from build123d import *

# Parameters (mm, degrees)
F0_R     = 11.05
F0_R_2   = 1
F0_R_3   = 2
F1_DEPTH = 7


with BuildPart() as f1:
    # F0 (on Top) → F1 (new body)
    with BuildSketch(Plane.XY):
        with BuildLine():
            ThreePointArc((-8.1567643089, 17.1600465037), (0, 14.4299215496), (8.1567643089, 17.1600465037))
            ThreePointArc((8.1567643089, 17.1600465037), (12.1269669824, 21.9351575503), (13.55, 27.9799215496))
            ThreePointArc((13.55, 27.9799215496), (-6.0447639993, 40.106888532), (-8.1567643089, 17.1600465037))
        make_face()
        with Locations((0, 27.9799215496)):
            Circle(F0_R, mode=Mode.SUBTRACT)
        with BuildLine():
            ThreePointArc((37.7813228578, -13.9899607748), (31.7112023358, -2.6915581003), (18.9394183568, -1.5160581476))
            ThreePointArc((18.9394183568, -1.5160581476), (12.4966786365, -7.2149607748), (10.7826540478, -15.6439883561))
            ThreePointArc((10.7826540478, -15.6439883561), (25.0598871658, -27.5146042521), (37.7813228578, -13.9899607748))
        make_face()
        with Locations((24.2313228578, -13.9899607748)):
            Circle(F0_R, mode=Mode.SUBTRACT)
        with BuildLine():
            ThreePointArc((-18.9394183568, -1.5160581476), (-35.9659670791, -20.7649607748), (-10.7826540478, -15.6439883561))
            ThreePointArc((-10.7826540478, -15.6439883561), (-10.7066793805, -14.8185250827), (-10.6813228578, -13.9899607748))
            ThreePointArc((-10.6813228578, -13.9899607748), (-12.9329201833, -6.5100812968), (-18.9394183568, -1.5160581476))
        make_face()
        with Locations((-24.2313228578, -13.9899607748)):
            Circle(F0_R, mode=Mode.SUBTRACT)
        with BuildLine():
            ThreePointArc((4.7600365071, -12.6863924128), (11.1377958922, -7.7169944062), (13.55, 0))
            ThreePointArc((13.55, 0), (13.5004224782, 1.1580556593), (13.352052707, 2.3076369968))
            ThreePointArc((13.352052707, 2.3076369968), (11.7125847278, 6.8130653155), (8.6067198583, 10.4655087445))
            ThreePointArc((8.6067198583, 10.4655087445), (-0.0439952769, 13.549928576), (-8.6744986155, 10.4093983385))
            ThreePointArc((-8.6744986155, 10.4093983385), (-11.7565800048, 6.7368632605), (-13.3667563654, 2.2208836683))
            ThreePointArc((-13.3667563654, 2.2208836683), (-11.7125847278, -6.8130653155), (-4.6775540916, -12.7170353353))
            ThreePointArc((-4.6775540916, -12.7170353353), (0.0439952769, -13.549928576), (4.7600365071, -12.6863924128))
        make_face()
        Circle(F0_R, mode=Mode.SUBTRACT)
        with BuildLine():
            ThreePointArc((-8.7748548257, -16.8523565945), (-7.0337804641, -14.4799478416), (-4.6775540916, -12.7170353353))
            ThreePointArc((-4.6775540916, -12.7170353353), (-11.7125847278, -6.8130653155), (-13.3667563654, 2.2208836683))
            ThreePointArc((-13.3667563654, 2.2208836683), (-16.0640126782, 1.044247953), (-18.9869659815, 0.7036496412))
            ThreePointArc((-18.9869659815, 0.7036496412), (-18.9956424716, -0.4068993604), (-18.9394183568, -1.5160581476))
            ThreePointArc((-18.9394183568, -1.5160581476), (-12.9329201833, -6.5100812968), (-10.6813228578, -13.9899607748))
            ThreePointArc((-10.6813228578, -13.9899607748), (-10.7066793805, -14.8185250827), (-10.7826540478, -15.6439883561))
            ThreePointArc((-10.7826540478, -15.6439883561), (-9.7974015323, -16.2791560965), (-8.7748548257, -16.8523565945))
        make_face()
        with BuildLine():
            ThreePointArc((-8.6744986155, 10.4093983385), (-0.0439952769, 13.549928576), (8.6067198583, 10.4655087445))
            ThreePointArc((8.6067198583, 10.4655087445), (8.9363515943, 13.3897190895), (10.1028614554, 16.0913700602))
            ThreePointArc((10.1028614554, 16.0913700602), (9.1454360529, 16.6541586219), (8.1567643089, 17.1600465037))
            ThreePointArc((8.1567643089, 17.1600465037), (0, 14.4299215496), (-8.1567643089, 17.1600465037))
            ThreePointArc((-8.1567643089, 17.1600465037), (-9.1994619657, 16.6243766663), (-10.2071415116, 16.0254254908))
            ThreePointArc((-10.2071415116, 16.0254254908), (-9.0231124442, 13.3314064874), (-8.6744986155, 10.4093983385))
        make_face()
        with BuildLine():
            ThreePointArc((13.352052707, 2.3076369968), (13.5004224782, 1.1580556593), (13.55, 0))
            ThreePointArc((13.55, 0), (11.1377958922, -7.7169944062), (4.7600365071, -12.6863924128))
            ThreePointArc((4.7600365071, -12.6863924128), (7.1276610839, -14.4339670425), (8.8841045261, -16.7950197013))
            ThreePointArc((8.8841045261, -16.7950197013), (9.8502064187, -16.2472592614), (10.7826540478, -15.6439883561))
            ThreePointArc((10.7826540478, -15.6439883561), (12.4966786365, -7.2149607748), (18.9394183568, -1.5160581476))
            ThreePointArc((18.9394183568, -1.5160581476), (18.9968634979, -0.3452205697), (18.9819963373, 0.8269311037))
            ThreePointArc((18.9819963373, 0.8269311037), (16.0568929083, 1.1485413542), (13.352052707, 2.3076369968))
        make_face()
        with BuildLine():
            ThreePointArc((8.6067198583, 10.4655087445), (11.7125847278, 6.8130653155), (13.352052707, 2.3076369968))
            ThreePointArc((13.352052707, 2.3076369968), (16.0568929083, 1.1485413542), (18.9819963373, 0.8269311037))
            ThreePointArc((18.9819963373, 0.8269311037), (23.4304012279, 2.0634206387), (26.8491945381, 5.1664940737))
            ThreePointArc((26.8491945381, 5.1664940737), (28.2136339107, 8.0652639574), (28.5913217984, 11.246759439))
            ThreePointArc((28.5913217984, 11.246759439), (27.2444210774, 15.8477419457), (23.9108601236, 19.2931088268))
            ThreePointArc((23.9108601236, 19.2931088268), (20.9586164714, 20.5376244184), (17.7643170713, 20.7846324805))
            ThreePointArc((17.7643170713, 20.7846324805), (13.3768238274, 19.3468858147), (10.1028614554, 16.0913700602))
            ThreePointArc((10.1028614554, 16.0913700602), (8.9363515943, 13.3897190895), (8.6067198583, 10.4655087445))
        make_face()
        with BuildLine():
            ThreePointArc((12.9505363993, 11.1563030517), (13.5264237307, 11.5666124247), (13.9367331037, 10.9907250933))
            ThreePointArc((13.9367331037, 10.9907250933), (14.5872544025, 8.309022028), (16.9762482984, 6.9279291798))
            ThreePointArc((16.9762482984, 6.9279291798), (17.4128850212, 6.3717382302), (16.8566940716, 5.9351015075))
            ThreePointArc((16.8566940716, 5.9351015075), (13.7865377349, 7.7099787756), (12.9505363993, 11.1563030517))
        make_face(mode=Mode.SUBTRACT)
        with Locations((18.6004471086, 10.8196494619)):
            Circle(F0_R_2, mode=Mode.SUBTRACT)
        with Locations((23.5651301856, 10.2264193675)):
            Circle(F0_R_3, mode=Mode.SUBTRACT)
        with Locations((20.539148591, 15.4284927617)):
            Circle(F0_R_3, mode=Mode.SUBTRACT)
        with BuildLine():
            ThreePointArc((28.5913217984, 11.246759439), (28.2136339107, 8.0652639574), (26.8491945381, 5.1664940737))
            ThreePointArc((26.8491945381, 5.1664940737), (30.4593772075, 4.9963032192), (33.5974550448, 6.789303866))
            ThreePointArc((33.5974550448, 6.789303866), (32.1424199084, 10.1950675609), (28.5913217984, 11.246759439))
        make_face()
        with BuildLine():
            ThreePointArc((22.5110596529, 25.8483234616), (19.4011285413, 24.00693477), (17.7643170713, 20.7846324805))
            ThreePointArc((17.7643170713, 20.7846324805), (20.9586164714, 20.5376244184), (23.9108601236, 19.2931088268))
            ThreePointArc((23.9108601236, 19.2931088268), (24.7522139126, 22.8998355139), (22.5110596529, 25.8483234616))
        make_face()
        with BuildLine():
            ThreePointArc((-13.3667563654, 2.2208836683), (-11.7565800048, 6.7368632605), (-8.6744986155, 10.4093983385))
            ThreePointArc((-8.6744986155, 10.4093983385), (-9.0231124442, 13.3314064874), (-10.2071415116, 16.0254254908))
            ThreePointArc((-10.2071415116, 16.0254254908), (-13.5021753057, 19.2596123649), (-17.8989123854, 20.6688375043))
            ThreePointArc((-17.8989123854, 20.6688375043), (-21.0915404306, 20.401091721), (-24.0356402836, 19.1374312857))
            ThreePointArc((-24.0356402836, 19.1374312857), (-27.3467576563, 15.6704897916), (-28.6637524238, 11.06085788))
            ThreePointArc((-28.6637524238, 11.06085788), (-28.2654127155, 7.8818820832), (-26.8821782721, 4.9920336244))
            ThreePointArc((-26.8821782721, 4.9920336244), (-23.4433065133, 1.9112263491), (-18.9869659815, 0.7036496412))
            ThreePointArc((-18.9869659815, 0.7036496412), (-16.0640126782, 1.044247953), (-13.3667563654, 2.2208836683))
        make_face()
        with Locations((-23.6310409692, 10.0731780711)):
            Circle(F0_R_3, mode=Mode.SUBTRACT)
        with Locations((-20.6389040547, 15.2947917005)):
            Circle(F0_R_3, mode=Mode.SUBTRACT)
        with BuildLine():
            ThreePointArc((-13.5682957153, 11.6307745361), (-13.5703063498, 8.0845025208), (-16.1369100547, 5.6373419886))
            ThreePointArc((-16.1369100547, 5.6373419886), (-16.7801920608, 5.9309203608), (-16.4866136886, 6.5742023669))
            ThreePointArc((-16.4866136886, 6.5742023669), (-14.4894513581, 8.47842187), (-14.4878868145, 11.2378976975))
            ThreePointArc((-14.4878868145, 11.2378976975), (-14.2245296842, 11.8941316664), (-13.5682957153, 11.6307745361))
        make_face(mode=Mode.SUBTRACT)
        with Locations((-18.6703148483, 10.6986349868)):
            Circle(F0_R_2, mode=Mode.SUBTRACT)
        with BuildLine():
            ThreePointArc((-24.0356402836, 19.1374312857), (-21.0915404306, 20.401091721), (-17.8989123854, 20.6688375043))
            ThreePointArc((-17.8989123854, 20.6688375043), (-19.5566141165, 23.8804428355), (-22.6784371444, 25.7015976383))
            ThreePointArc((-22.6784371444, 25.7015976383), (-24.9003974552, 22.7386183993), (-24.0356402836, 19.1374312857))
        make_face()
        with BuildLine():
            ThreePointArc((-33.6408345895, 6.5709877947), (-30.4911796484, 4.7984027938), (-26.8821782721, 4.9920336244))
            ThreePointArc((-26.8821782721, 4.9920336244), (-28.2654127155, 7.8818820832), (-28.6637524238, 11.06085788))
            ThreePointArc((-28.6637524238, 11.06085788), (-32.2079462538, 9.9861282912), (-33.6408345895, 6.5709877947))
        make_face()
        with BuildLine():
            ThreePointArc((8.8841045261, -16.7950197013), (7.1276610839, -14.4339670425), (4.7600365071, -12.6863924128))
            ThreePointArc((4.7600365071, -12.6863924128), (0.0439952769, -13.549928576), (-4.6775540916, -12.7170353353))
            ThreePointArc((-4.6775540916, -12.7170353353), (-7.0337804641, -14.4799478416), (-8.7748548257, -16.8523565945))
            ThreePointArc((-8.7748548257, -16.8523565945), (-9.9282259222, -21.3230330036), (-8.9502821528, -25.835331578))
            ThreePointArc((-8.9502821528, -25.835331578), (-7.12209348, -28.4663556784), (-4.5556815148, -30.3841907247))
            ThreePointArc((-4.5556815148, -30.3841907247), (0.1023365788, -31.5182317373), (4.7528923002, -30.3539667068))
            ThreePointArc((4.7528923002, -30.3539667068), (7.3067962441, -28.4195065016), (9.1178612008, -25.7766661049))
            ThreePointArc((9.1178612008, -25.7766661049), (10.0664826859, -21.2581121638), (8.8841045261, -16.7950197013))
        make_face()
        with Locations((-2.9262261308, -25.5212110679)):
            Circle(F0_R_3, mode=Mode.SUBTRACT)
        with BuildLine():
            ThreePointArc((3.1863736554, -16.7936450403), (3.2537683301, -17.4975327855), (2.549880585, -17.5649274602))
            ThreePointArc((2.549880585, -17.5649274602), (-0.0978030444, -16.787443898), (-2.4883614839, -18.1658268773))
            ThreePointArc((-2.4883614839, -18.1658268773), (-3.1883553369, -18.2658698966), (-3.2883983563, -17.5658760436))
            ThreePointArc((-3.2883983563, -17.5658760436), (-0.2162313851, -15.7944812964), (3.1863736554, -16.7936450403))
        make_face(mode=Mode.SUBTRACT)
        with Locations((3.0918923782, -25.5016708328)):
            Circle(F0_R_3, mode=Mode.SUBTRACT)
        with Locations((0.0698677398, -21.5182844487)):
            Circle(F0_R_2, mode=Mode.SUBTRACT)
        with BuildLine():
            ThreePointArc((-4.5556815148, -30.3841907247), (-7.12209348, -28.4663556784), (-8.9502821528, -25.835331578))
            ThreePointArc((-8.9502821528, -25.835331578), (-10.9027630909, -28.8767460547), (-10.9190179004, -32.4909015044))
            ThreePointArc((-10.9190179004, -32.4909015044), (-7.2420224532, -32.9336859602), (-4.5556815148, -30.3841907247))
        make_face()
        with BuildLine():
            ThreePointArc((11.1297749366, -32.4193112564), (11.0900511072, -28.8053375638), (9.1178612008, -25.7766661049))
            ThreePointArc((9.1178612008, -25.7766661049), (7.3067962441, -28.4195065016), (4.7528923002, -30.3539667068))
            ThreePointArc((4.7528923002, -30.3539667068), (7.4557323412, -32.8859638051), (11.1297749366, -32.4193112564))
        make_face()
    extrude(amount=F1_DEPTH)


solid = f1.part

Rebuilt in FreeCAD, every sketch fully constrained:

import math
import FreeCAD as App
import Part
import Sketcher
Q = App.Units.Quantity

doc = App.newDocument("Part")
body = doc.addObject("PartDesign::Body", "Body")

# Sketch on XY plane
sketch1 = body.newObject("Sketcher::SketchObject", "Sketch")
sketch1.AttachmentSupport = (doc.getObject("XY_Plane"), [""])
sketch1.MapMode = "FlatFace"
sketch1.addGeometry(Part.ArcOfCircle(Part.Circle(App.Vector(0, 27.979922, 0), App.Vector(0, 0, 1), 13.55), math.radians(-52.988506), math.radians(0)), False)
sketch1.addGeometry(Part.ArcOfCircle(Part.Circle(App.Vector(0, 27.979922, 0), App.Vector(0, 0, 1), 13.55), math.radians(0), math.radians(232.988506)), False)
sketch1.addGeometry(Part.ArcOfCircle(Part.Circle(App.Vector(0, 0, 0), App.Vector(0, 0, 1), 19), math.radians(115.423359), math.radians(122.494454)), False)
sketch1.addGeometry(Part.ArcOfCircle(Part.Circle(App.Vector(-18.670315, 10.698635, 0), App.Vector(0, 0, 1), 10), math.radians(32.186647), math.radians(85.575794)), False)
sketch1.addGeometry(Part.ArcOfCircle(Part.Circle(App.Vector(-24.247538, 19.425554, 0), App.Vector(0, 0, 1), 6.469219), math.radians(11.080294), math.radians(75.962984)), False)
sketch1.addGeometry(Part.ArcOfCircle(Part.Circle(App.Vector(-20.638904, 21.857515, 0), App.Vector(0, 0, 1), 4.351628), math.radians(117.948824), math.radians(218.687509)), False)
sketch1.addGeometry(Part.ArcOfCircle(Part.Circle(App.Vector(-18.670315, 10.698635, 0), App.Vector(0, 0, 1), 10), math.radians(122.447905), math.radians(177.924162)), False)
sketch1.addGeometry(Part.ArcOfCircle(Part.Circle(App.Vector(-29.293098, 6.754979, 0), App.Vector(0, 0, 1), 4.351628), math.radians(81.684557), math.radians(182.423243)), False)
sketch1.addGeometry(Part.ArcOfCircle(Part.Circle(App.Vector(-29.019472, 11.097996, 0), App.Vector(0, 0, 1), 6.469219), math.radians(-135.590918), math.radians(-70.708228)), False)
sketch1.addGeometry(Part.ArcOfCircle(Part.Circle(App.Vector(-18.670315, 10.698635, 0), App.Vector(0, 0, 1), 10), math.radians(-145.203728), math.radians(-91.814581)), False)
sketch1.addGeometry(Part.ArcOfCircle(Part.Circle(App.Vector(0, 0, 0), App.Vector(0, 0, 1), 19), math.radians(177.877612), math.radians(184.576641)), False)
sketch1.addGeometry(Part.ArcOfCircle(Part.Circle(App.Vector(-24.231323, -13.989961, 0), App.Vector(0, 0, 1), 13.55), math.radians(67.011494), math.radians(352.988506)), False)
sketch1.addGeometry(Part.ArcOfCircle(Part.Circle(App.Vector(0, 0, 0), App.Vector(0, 0, 1), 19), math.radians(-124.576641), math.radians(-117.505546)), False)
sketch1.addGeometry(Part.ArcOfCircle(Part.Circle(App.Vector(0.069868, -21.518284, 0), App.Vector(0, 0, 1), 10), math.radians(152.186647), math.radians(205.575794)), False)
sketch1.addGeometry(Part.ArcOfCircle(Part.Circle(App.Vector(-4.699254, -30.711761, 0), App.Vector(0, 0, 1), 6.469219), math.radians(131.080294), math.radians(195.962984)), False)
sketch1.addGeometry(Part.ArcOfCircle(Part.Circle(App.Vector(-8.609711, -28.802572, 0), App.Vector(0, 0, 1), 4.351628), math.radians(-122.051176), math.radians(-21.312491)), False)
sketch1.addGeometry(Part.ArcOfCircle(Part.Circle(App.Vector(0.069868, -21.518284, 0), App.Vector(0, 0, 1), 10), math.radians(-117.552095), math.radians(-62.075838)), False)
sketch1.addGeometry(Part.ArcOfCircle(Part.Circle(App.Vector(8.796566, -28.746056, 0), App.Vector(0, 0, 1), 4.351628), math.radians(-158.315443), math.radians(-57.576757)), False)
sketch1.addGeometry(Part.ArcOfCircle(Part.Circle(App.Vector(4.898589, -30.680598, 0), App.Vector(0, 0, 1), 6.469219), math.radians(-15.590918), math.radians(49.291772)), False)
sketch1.addGeometry(Part.ArcOfCircle(Part.Circle(App.Vector(0.069868, -21.518284, 0), App.Vector(0, 0, 1), 10), math.radians(-25.203728), math.radians(28.185419)), False)
sketch1.addGeometry(Part.ArcOfCircle(Part.Circle(App.Vector(0, 0, 0), App.Vector(0, 0, 1), 19), math.radians(-62.122388), math.radians(-55.423359)), False)
sketch1.addGeometry(Part.ArcOfCircle(Part.Circle(App.Vector(24.231323, -13.989961, 0), App.Vector(0, 0, 1), 13.55), math.radians(-172.988506), math.radians(0)), False)
sketch1.addGeometry(Part.ArcOfCircle(Part.Circle(App.Vector(24.231323, -13.989961, 0), App.Vector(0, 0, 1), 13.55), math.radians(0), math.radians(112.988506)), False)
sketch1.addGeometry(Part.ArcOfCircle(Part.Circle(App.Vector(0, 0, 0), App.Vector(0, 0, 1), 19), math.radians(-4.576641), math.radians(2.494454)), False)
sketch1.addGeometry(Part.ArcOfCircle(Part.Circle(App.Vector(18.600447, 10.819649, 0), App.Vector(0, 0, 1), 10), math.radians(-87.813353), math.radians(-34.424206)), False)
sketch1.addGeometry(Part.ArcOfCircle(Part.Circle(App.Vector(28.946792, 11.286207, 0), App.Vector(0, 0, 1), 6.469219), math.radians(-108.919706), math.radians(-44.037016)), False)
sketch1.addGeometry(Part.ArcOfCircle(Part.Circle(App.Vector(29.248615, 6.945058, 0), App.Vector(0, 0, 1), 4.351628), math.radians(-2.051176), math.radians(98.687509)), False)
sketch1.addGeometry(Part.ArcOfCircle(Part.Circle(App.Vector(18.600447, 10.819649, 0), App.Vector(0, 0, 1), 10), math.radians(2.447905), math.radians(57.924162)), False)
sketch1.addGeometry(Part.ArcOfCircle(Part.Circle(App.Vector(20.496532, 21.991077, 0), App.Vector(0, 0, 1), 4.351628), math.radians(-38.315443), math.radians(62.423243)), False)
sketch1.addGeometry(Part.ArcOfCircle(Part.Circle(App.Vector(24.120882, 19.582602, 0), App.Vector(0, 0, 1), 6.469219), math.radians(104.409082), math.radians(169.291772)), False)
sketch1.addGeometry(Part.ArcOfCircle(Part.Circle(App.Vector(18.600447, 10.819649, 0), App.Vector(0, 0, 1), 10), math.radians(94.796272), math.radians(148.185419)), False)
sketch1.addGeometry(Part.ArcOfCircle(Part.Circle(App.Vector(0, 0, 0), App.Vector(0, 0, 1), 19), math.radians(57.877612), math.radians(64.576641)), False)
sketch1.addGeometry(Part.Circle(App.Vector(-24.231323, -13.989961, 0), App.Vector(0, 0, 1), 11.05), False)
sketch1.addGeometry(Part.Circle(App.Vector(-2.926226, -25.521211, 0), App.Vector(0, 0, 1), 2), False)
sketch1.addGeometry(Part.ArcOfCircle(Part.Circle(App.Vector(0.317552, -20.269993, 0), App.Vector(0, 0, 1), 4.507231), math.radians(50.469189), math.radians(143.133624)), False)
sketch1.addGeometry(Part.ArcOfCircle(Part.Circle(App.Vector(2.868127, -17.179286, 0), App.Vector(0, 0, 1), 0.5), math.radians(-129.530811), math.radians(50.469189)), False)
sketch1.addGeometry(Part.ArcOfCircle(Part.Circle(App.Vector(0.317552, -20.269993, 0), App.Vector(0, 0, 1), 3.507231), math.radians(50.469189), math.radians(143.133624)), False)
sketch1.addGeometry(Part.ArcOfCircle(Part.Circle(App.Vector(-2.88838, -17.865851, 0), App.Vector(0, 0, 1), 0.5), math.radians(143.133624), math.radians(323.133624)), False)
sketch1.addGeometry(Part.Circle(App.Vector(3.091892, -25.501671, 0), App.Vector(0, 0, 1), 2), False)
sketch1.addGeometry(Part.Circle(App.Vector(0.069868, -21.518284, 0), App.Vector(0, 0, 1), 1), False)
sketch1.addGeometry(Part.Circle(App.Vector(24.231323, -13.989961, 0), App.Vector(0, 0, 1), 11.05), False)
sketch1.addGeometry(Part.Circle(App.Vector(0, 0, 0), App.Vector(0, 0, 1), 11.05), False)
sketch1.addGeometry(Part.Circle(App.Vector(-23.631041, 10.073178, 0), App.Vector(0, 0, 1), 2), False)
sketch1.addGeometry(Part.Circle(App.Vector(-18.670315, 10.698635, 0), App.Vector(0, 0, 1), 1), False)
sketch1.addGeometry(Part.Circle(App.Vector(-20.638904, 15.294792, 0), App.Vector(0, 0, 1), 2), False)
sketch1.addGeometry(Part.ArcOfCircle(Part.Circle(App.Vector(-14.028091, 11.434336, 0), App.Vector(0, 0, 1), 0.5), math.radians(23.133624), math.radians(203.133624)), False)
sketch1.addGeometry(Part.ArcOfCircle(Part.Circle(App.Vector(-17.713105, 9.859988, 0), App.Vector(0, 0, 1), 4.507231), math.radians(-69.530811), math.radians(23.133624)), False)
sketch1.addGeometry(Part.ArcOfCircle(Part.Circle(App.Vector(-16.311762, 6.105772, 0), App.Vector(0, 0, 1), 0.5), math.radians(110.469189), math.radians(290.469189)), False)
sketch1.addGeometry(Part.ArcOfCircle(Part.Circle(App.Vector(-17.713105, 9.859988, 0), App.Vector(0, 0, 1), 3.507231), math.radians(-69.530811), math.radians(23.133624)), False)
sketch1.addGeometry(Part.ArcOfCircle(Part.Circle(App.Vector(17.395553, 10.410005, 0), App.Vector(0, 0, 1), 4.507231), math.radians(170.469189), math.radians(263.133624)), False)
sketch1.addGeometry(Part.ArcOfCircle(Part.Circle(App.Vector(13.443635, 11.073514, 0), App.Vector(0, 0, 1), 0.5), math.radians(-9.530811), math.radians(170.469189)), False)
sketch1.addGeometry(Part.ArcOfCircle(Part.Circle(App.Vector(17.395553, 10.410005, 0), App.Vector(0, 0, 1), 3.507231), math.radians(170.469189), math.radians(263.133624)), False)
sketch1.addGeometry(Part.ArcOfCircle(Part.Circle(App.Vector(16.916471, 6.431515, 0), App.Vector(0, 0, 1), 0.5), math.radians(-96.866376), math.radians(83.133624)), False)
sketch1.addGeometry(Part.Circle(App.Vector(18.600447, 10.819649, 0), App.Vector(0, 0, 1), 1), False)
sketch1.addGeometry(Part.Circle(App.Vector(23.56513, 10.226419, 0), App.Vector(0, 0, 1), 2), False)
sketch1.addGeometry(Part.Circle(App.Vector(20.539149, 15.428493, 0), App.Vector(0, 0, 1), 2), False)
sketch1.addGeometry(Part.Circle(App.Vector(0, 27.979922, 0), App.Vector(0, 0, 1), 11.05), False)
sketch1.addConstraint(Sketcher.Constraint("Tangent", 0, 2, 1, 1))
sketch1.addConstraint(Sketcher.Constraint("Coincident", 1, 2, 2, 1))
sketch1.addConstraint(Sketcher.Constraint("Coincident", 2, 2, 3, 1))
sketch1.addConstraint(Sketcher.Constraint("Coincident", 3, 2, 4, 1))
sketch1.addConstraint(Sketcher.Constraint("Coincident", 4, 2, 5, 1))
sketch1.addConstraint(Sketcher.Constraint("Coincident", 5, 2, 6, 1))
sketch1.addConstraint(Sketcher.Constraint("Coincident", 6, 2, 7, 1))
sketch1.addConstraint(Sketcher.Constraint("Coincident", 7, 2, 8, 1))
sketch1.addConstraint(Sketcher.Constraint("Coincident", 8, 2, 9, 1))
sketch1.addConstraint(Sketcher.Constraint("Coincident", 9, 2, 10, 1))
sketch1.addConstraint(Sketcher.Constraint("Coincident", 10, 2, 11, 1))
sketch1.addConstraint(Sketcher.Constraint("Coincident", 11, 2, 12, 1))
sketch1.addConstraint(Sketcher.Constraint("Coincident", 12, 2, 13, 1))
sketch1.addConstraint(Sketcher.Constraint("Coincident", 13, 2, 14, 1))
sketch1.addConstraint(Sketcher.Constraint("Coincident", 14, 2, 15, 1))
sketch1.addConstraint(Sketcher.Constraint("Coincident", 15, 2, 16, 1))
sketch1.addConstraint(Sketcher.Constraint("Coincident", 16, 2, 17, 1))
sketch1.addConstraint(Sketcher.Constraint("Coincident", 17, 2, 18, 1))
sketch1.addConstraint(Sketcher.Constraint("Coincident", 18, 2, 19, 1))
sketch1.addConstraint(Sketcher.Constraint("Coincident", 19, 2, 20, 1))
sketch1.addConstraint(Sketcher.Constraint("Coincident", 20, 2, 21, 1))
sketch1.addConstraint(Sketcher.Constraint("Tangent", 21, 2, 22, 1))
sketch1.addConstraint(Sketcher.Constraint("Coincident", 22, 2, 23, 1))
sketch1.addConstraint(Sketcher.Constraint("Coincident", 23, 2, 24, 1))
sketch1.addConstraint(Sketcher.Constraint("Coincident", 24, 2, 25, 1))
sketch1.addConstraint(Sketcher.Constraint("Coincident", 25, 2, 26, 1))
sketch1.addConstraint(Sketcher.Constraint("Coincident", 26, 2, 27, 1))
sketch1.addConstraint(Sketcher.Constraint("Coincident", 27, 2, 28, 1))
sketch1.addConstraint(Sketcher.Constraint("Coincident", 28, 2, 29, 1))
sketch1.addConstraint(Sketcher.Constraint("Coincident", 29, 2, 30, 1))
sketch1.addConstraint(Sketcher.Constraint("Coincident", 30, 2, 31, 1))
sketch1.addConstraint(Sketcher.Constraint("Coincident", 31, 2, 0, 1))
sketch1.addConstraint(Sketcher.Constraint("Tangent", 34, 1, 35, 2))
sketch1.addConstraint(Sketcher.Constraint("Tangent", 35, 1, 36, 1))
sketch1.addConstraint(Sketcher.Constraint("Tangent", 36, 2, 37, 2))
sketch1.addConstraint(Sketcher.Constraint("Tangent", 37, 1, 34, 2))
sketch1.addConstraint(Sketcher.Constraint("Tangent", 45, 1, 46, 2))
sketch1.addConstraint(Sketcher.Constraint("Tangent", 46, 1, 47, 2))
sketch1.addConstraint(Sketcher.Constraint("Tangent", 47, 1, 48, 1))
sketch1.addConstraint(Sketcher.Constraint("Tangent", 48, 2, 45, 2))
sketch1.addConstraint(Sketcher.Constraint("Tangent", 49, 1, 50, 2))
sketch1.addConstraint(Sketcher.Constraint("Tangent", 50, 1, 51, 1))
sketch1.addConstraint(Sketcher.Constraint("Tangent", 51, 2, 52, 2))
sketch1.addConstraint(Sketcher.Constraint("Tangent", 52, 1, 49, 2))
sketch1.addConstraint(Sketcher.Constraint("Coincident", 2, 3, -1, 1))
sketch1.addConstraint(Sketcher.Constraint("Coincident", 10, 3, -1, 1))
sketch1.addConstraint(Sketcher.Constraint("Coincident", 12, 3, -1, 1))
sketch1.addConstraint(Sketcher.Constraint("Coincident", 20, 3, -1, 1))
sketch1.addConstraint(Sketcher.Constraint("Coincident", 23, 3, -1, 1))
sketch1.addConstraint(Sketcher.Constraint("Coincident", 31, 3, -1, 1))
sketch1.addConstraint(Sketcher.Constraint("Coincident", 41, 3, -1, 1))
sketch1.addConstraint(Sketcher.Constraint("Coincident", 6, 3, 3, 3))
sketch1.addConstraint(Sketcher.Constraint("Coincident", 9, 3, 3, 3))
sketch1.addConstraint(Sketcher.Constraint("Coincident", 16, 3, 13, 3))
sketch1.addConstraint(Sketcher.Constraint("Coincident", 19, 3, 13, 3))
sketch1.addConstraint(Sketcher.Constraint("Coincident", 27, 3, 24, 3))
sketch1.addConstraint(Sketcher.Constraint("Coincident", 30, 3, 24, 3))
sketch1.addConstraint(Sketcher.Constraint("Coincident", 32, 3, 11, 3))
sketch1.addConstraint(Sketcher.Constraint("Coincident", 36, 3, 34, 3))
sketch1.addConstraint(Sketcher.Constraint("Coincident", 39, 3, 13, 3))
sketch1.addConstraint(Sketcher.Constraint("Coincident", 40, 3, 21, 3))
sketch1.addConstraint(Sketcher.Constraint("Coincident", 43, 3, 3, 3))
sketch1.addConstraint(Sketcher.Constraint("Coincident", 48, 3, 46, 3))
sketch1.addConstraint(Sketcher.Constraint("Coincident", 51, 3, 49, 3))
sketch1.addConstraint(Sketcher.Constraint("Coincident", 53, 3, 24, 3))
sketch1.addConstraint(Sketcher.Constraint("Coincident", 56, 3, 0, 3))
sketch1.addConstraint(Sketcher.Constraint("Equal", 0, 1))
sketch1.addConstraint(Sketcher.Constraint("Equal", 3, 6))
sketch1.addConstraint(Sketcher.Constraint("Equal", 5, 7))
sketch1.addConstraint(Sketcher.Constraint("Equal", 4, 8))
sketch1.addConstraint(Sketcher.Constraint("Equal", 6, 9))
sketch1.addConstraint(Sketcher.Constraint("Equal", 2, 10))
sketch1.addConstraint(Sketcher.Constraint("Equal", 1, 11))
sketch1.addConstraint(Sketcher.Constraint("Equal", 10, 12))
sketch1.addConstraint(Sketcher.Constraint("Equal", 9, 13))
sketch1.addConstraint(Sketcher.Constraint("Equal", 8, 14))
sketch1.addConstraint(Sketcher.Constraint("Equal", 7, 15))
sketch1.addConstraint(Sketcher.Constraint("Equal", 13, 16))
sketch1.addConstraint(Sketcher.Constraint("Equal", 15, 17))
sketch1.addConstraint(Sketcher.Constraint("Equal", 14, 18))
sketch1.addConstraint(Sketcher.Constraint("Equal", 16, 19))
sketch1.addConstraint(Sketcher.Constraint("Equal", 12, 20))
sketch1.addConstraint(Sketcher.Constraint("Equal", 11, 21))
sketch1.addConstraint(Sketcher.Constraint("Equal", 21, 22))
sketch1.addConstraint(Sketcher.Constraint("Equal", 20, 23))
sketch1.addConstraint(Sketcher.Constraint("Equal", 19, 24))
sketch1.addConstraint(Sketcher.Constraint("Equal", 18, 25))
sketch1.addConstraint(Sketcher.Constraint("Equal", 17, 26))
sketch1.addConstraint(Sketcher.Constraint("Equal", 24, 27))
sketch1.addConstraint(Sketcher.Constraint("Equal", 26, 28))
sketch1.addConstraint(Sketcher.Constraint("Equal", 25, 29))
sketch1.addConstraint(Sketcher.Constraint("Equal", 27, 30))
sketch1.addConstraint(Sketcher.Constraint("Equal", 23, 31))
sketch1.addConstraint(Sketcher.Constraint("Equal", 33, 38))
sketch1.addConstraint(Sketcher.Constraint("Equal", 32, 40))
sketch1.addConstraint(Sketcher.Constraint("Equal", 40, 41))
sketch1.addConstraint(Sketcher.Constraint("Equal", 38, 42))
sketch1.addConstraint(Sketcher.Constraint("Equal", 39, 43))
sketch1.addConstraint(Sketcher.Constraint("Equal", 42, 44))
sketch1.addConstraint(Sketcher.Constraint("Equal", 37, 45))
sketch1.addConstraint(Sketcher.Constraint("Equal", 34, 46))
sketch1.addConstraint(Sketcher.Constraint("Equal", 46, 49))
sketch1.addConstraint(Sketcher.Constraint("Equal", 47, 50))
sketch1.addConstraint(Sketcher.Constraint("Equal", 43, 53))
sketch1.addConstraint(Sketcher.Constraint("Equal", 44, 54))
sketch1.addConstraint(Sketcher.Constraint("Equal", 54, 55))
sketch1.addConstraint(Sketcher.Constraint("Equal", 41, 56))
sketch1.addConstraint(Sketcher.Constraint("Symmetric", 11, 3, 21, 3, -2))
sketch1.addConstraint(Sketcher.Constraint("PointOnObject", 0, 3, -2))
sketch1.addConstraint(Sketcher.Constraint("Horizontal", 56, 3, 0, 2))
sketch1.addConstraint(Sketcher.Constraint("Horizontal", 40, 3, 21, 2))
sketch1.addConstraint(Sketcher.Constraint("Vertical", 5, 3, 44, 3))
sketch1.addConstraint(Sketcher.Constraint("Diameter", 33, Q("4 mm")))
sketch1.addConstraint(Sketcher.Constraint("Diameter", 39, Q("2 mm")))
sketch1.addConstraint(Sketcher.Constraint("Radius", 2, Q("19 mm")))
sketch1.addConstraint(Sketcher.Constraint("Radius", 3, Q("10 mm")))
sketch1.addConstraint(Sketcher.Constraint("Diameter", 32, Q("22.1 mm")))
sketch1.addConstraint(Sketcher.Constraint("Radius", 35, Q("0.5 mm")))
sketch1.addConstraint(Sketcher.Constraint("Radius", 0, Q("13.55 mm")))
sketch1.addConstraint(Sketcher.Constraint("Radius", 4, Q("6.469219 mm")))
sketch1.addConstraint(Sketcher.Constraint("Radius", 5, Q("4.351628 mm")))
sketch1.addConstraint(Sketcher.Constraint("Radius", 34, Q("4.507231 mm")))
sketch1.addConstraint(Sketcher.Constraint("DistanceY", -1, 1, 29, 3, Q("19.582602 mm")))
sketch1.addConstraint(Sketcher.Constraint("DistanceY", 14, 2, -1, 1, Q("32.490902 mm")))
sketch1.addConstraint(Sketcher.Constraint("DistanceX", 37, 1, -1, 1, Q("3.288398 mm")))
sketch1.addConstraint(Sketcher.Constraint("DistanceY", -1, 1, 52, 1, Q("5.935102 mm")))
sketch1.addConstraint(Sketcher.Constraint("DistanceY", -1, 1, 0, 3, Q("27.979922 mm")))
sketch1.addConstraint(Sketcher.Constraint("DistanceY", -1, 1, 7, 3, Q("6.754979 mm")))
sketch1.addConstraint(Sketcher.Constraint("DistanceX", 8, 3, -1, 1, Q("29.019472 mm")))
sketch1.addConstraint(Sketcher.Constraint("DistanceY", 11, 3, -1, 1, Q("13.989961 mm")))
sketch1.addConstraint(Sketcher.Constraint("DistanceY", 14, 3, -1, 1, Q("30.711761 mm")))
sketch1.addConstraint(Sketcher.Constraint("DistanceX", 15, 3, -1, 1, Q("8.609711 mm")))
sketch1.addConstraint(Sketcher.Constraint("DistanceX", -1, 1, 18, 3, Q("4.898589 mm")))
sketch1.addConstraint(Sketcher.Constraint("DistanceY", -1, 1, 24, 3, Q("10.819649 mm")))
sketch1.addConstraint(Sketcher.Constraint("DistanceY", 33, 3, -1, 1, Q("25.521211 mm")))
sketch1.addConstraint(Sketcher.Constraint("DistanceX", 37, 3, -1, 1, Q("2.88838 mm")))
sketch1.addConstraint(Sketcher.Constraint("DistanceY", 37, 3, -1, 1, Q("17.865851 mm")))
sketch1.addConstraint(Sketcher.Constraint("DistanceY", 38, 3, -1, 1, Q("25.501671 mm")))
sketch1.addConstraint(Sketcher.Constraint("DistanceX", 42, 3, -1, 1, Q("23.631041 mm")))
sketch1.addConstraint(Sketcher.Constraint("DistanceY", -1, 1, 42, 3, Q("10.073178 mm")))
sketch1.addConstraint(Sketcher.Constraint("DistanceY", -1, 1, 44, 3, Q("15.294792 mm")))
sketch1.addConstraint(Sketcher.Constraint("DistanceX", 45, 3, -1, 1, Q("14.028091 mm")))
sketch1.addConstraint(Sketcher.Constraint("DistanceX", 47, 3, -1, 1, Q("16.311762 mm")))
sketch1.addConstraint(Sketcher.Constraint("DistanceX", -1, 1, 52, 3, Q("16.916471 mm")))
sketch1.addConstraint(Sketcher.Constraint("DistanceX", -1, 1, 54, 3, Q("23.56513 mm")))
sketch1.addConstraint(Sketcher.Constraint("DistanceY", -1, 1, 54, 3, Q("10.226419 mm")))
sketch1.addConstraint(Sketcher.Constraint("DistanceX", -1, 1, 55, 3, Q("20.539149 mm")))
sketch1.addConstraint(Sketcher.Constraint("DistanceX", 2, 2, -1, 1, Q("10.207142 mm")))
sketch1.addConstraint(Sketcher.Constraint("DistanceX", 5, 2, -1, 1, Q("24.03564 mm")))
sketch1.addConstraint(Sketcher.Constraint("DistanceY", -1, 1, 5, 2, Q("19.137431 mm")))
sketch1.addConstraint(Sketcher.Constraint("DistanceX", 8, 2, -1, 1, Q("26.882178 mm")))
sketch1.addConstraint(Sketcher.Constraint("DistanceX", 10, 2, -1, 1, Q("18.939418 mm")))
sketch1.addConstraint(Sketcher.Constraint("DistanceY", 13, 2, -1, 1, Q("25.835332 mm")))
sketch1.addConstraint(Sketcher.Constraint("DistanceX", 15, 2, -1, 1, Q("4.555682 mm")))
sketch1.addConstraint(Sketcher.Constraint("DistanceY", 15, 2, -1, 1, Q("30.384191 mm")))
sketch1.addConstraint(Sketcher.Constraint("DistanceY", 17, 2, -1, 1, Q("32.419311 mm")))
sketch1.addConstraint(Sketcher.Constraint("DistanceX", -1, 1, 18, 2, Q("9.117861 mm")))
sketch1.addConstraint(Sketcher.Constraint("DistanceX", -1, 1, 26, 2, Q("28.591322 mm")))
sketch1.addConstraint(Sketcher.Constraint("DistanceY", -1, 1, 26, 2, Q("11.246759 mm")))
sketch1.addConstraint(Sketcher.Constraint("DistanceX", -1, 1, 27, 2, Q("23.91086 mm")))
sketch1.addConstraint(Sketcher.Constraint("DistanceX", -1, 1, 28, 2, Q("22.51106 mm")))
sketch1.addConstraint(Sketcher.Constraint("DistanceX", -1, 1, 35, 1, Q("2.549881 mm")))
sketch1.addConstraint(Sketcher.Constraint("DistanceX", 46, 1, -1, 1, Q("16.13691 mm")))
sketch1.addConstraint(Sketcher.Constraint("DistanceY", -1, 1, 46, 1, Q("5.637342 mm")))
sketch1.addConstraint(Sketcher.Constraint("DistanceX", -1, 1, 51, 2, Q("16.976248 mm")))
sketch1.addConstraint(Sketcher.Constraint("DistanceX", 4, 3, -1, 1, Q("24.247538 mm")))
sketch1.addConstraint(Sketcher.Constraint("DistanceY", -1, 1, 4, 3, Q("19.425554 mm")))
sketch1.addConstraint(Sketcher.Constraint("DistanceX", 5, 3, -1, 1, Q("20.638904 mm")))
sketch1.addConstraint(Sketcher.Constraint("DistanceX", 7, 3, -1, 1, Q("29.293098 mm")))
sketch1.addConstraint(Sketcher.Constraint("DistanceX", -1, 1, 17, 3, Q("8.796566 mm")))
sketch1.addConstraint(Sketcher.Constraint("DistanceX", -1, 1, 25, 3, Q("28.946792 mm")))
sketch1.addConstraint(Sketcher.Constraint("DistanceY", -1, 1, 25, 3, Q("11.286207 mm")))
sketch1.addConstraint(Sketcher.Constraint("DistanceX", -1, 1, 26, 3, Q("29.248615 mm")))
sketch1.addConstraint(Sketcher.Constraint("DistanceX", -1, 1, 28, 3, Q("20.496532 mm")))
sketch1.addConstraint(Sketcher.Constraint("DistanceX", 33, 3, -1, 1, Q("2.926226 mm")))
sketch1.addConstraint(Sketcher.Constraint("DistanceX", -1, 1, 38, 3, Q("3.091892 mm")))
sketch1.addConstraint(Sketcher.Constraint("DistanceX", -1, 1, 50, 3, Q("13.443635 mm")))
sketch1.addConstraint(Sketcher.Constraint("DistanceY", -1, 1, 55, 3, Q("15.428493 mm")))
pad1 = body.newObject("PartDesign::Pad", "Pad")
pad1.Profile = sketch1
pad1.Length = 7

doc.recompute()
